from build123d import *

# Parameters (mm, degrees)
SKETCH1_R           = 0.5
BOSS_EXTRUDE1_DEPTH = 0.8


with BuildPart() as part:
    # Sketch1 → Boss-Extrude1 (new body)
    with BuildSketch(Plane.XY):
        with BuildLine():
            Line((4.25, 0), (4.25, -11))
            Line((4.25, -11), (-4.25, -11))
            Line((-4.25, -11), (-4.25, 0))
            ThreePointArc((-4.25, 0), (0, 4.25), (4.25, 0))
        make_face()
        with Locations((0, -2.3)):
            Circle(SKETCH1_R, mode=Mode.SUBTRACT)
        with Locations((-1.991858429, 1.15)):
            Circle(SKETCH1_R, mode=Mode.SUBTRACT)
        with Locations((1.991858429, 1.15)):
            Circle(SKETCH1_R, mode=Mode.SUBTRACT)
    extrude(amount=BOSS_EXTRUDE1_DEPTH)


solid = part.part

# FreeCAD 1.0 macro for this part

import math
import FreeCAD as App
import Part
import Sketcher
Q = App.Units.Quantity

doc = App.newDocument("Part")
body = doc.addObject("PartDesign::Body", "Body")

# Sketch on XY plane
sketch1 = body.newObject("Sketcher::SketchObject", "Sketch")
sketch1.AttachmentSupport = (doc.getObject("XY_Plane"), [""])
sketch1.MapMode = "FlatFace"
sketch1.addGeometry(Part.LineSegment(App.Vector(4.2, -11, 0), App.Vector(4.2, 0, 0)), False)
sketch1.addGeometry(Part.ArcOfCircle(Part.Circle(App.Vector(0, 0, 0), App.Vector(0, 0, 1), 4.2), math.radians(0), math.radians(180)), False)
sketch1.addGeometry(Part.LineSegment(App.Vector(-4.2, 0, 0), App.Vector(-4.2, -11, 0)), False)
sketch1.addGeometry(Part.LineSegment(App.Vector(-4.2, -11, 0), App.Vector(4.2, -11, 0)), False)
sketch1.addGeometry(Part.Circle(App.Vector(0, -2.3, 0), App.Vector(0, 0, 1), 0.5), False)
sketch1.addGeometry(Part.Circle(App.Vector(2, 1.1, 0), App.Vector(0, 0, 1), 0.5), False)
sketch1.addGeometry(Part.Circle(App.Vector(-2, 1.1, 0), App.Vector(0, 0, 1), 0.5), False)
sketch1.addConstraint(Sketcher.Constraint("Tangent", 0, 2, 1, 1))
sketch1.addConstraint(Sketcher.Constraint("Tangent", 1, 2, 2, 1))
sketch1.addConstraint(Sketcher.Constraint("Coincident", 2, 2, 3, 1))
sketch1.addConstraint(Sketcher.Constraint("Coincident", 3, 2, 0, 1))
sketch1.addConstraint(Sketcher.Constraint("Vertical", 0))
sketch1.addConstraint(Sketcher.Constraint("Vertical", 2))
sketch1.addConstraint(Sketcher.Constraint("Horizontal", 3))
sketch1.addConstraint(Sketcher.Constraint("Coincident", 1, 3, -1, 1))
sketch1.addConstraint(Sketcher.Constraint("Equal", 4, 5))
sketch1.addConstraint(Sketcher.Constraint("Equal", 5, 6))
sketch1.addConstraint(Sketcher.Constraint("Symmetric", 5, 3, 6, 3, -2))
sketch1.addConstraint(Sketcher.Constraint("PointOnObject", 4, 3, -2))
sketch1.addConstraint(Sketcher.Constraint("Diameter", 4, Q("1 mm")))
sketch1.addConstraint(Sketcher.Constraint("DistanceY", 0, 1, 0, 2, Q("11 mm")))
sketch1.addConstraint(Sketcher.Constraint("Radius", 1, Q("4.25 mm")))
sketch1.addConstraint(Sketcher.Constraint("DistanceY", 4, 3, -1, 1, Q("2.3 mm")))
sketch1.addConstraint(Sketcher.Constraint("DistanceY", -1, 1, 5, 3, Q("1.15 mm")))
sketch1.addConstraint(Sketcher.Constraint("DistanceX", -1, 1, 5, 3, Q("1.991858 mm")))
pad1 = body.newObject("PartDesign::Pad", "Pad")
pad1.Profile = sketch1
pad1.Length = 0.8

doc.recompute()
